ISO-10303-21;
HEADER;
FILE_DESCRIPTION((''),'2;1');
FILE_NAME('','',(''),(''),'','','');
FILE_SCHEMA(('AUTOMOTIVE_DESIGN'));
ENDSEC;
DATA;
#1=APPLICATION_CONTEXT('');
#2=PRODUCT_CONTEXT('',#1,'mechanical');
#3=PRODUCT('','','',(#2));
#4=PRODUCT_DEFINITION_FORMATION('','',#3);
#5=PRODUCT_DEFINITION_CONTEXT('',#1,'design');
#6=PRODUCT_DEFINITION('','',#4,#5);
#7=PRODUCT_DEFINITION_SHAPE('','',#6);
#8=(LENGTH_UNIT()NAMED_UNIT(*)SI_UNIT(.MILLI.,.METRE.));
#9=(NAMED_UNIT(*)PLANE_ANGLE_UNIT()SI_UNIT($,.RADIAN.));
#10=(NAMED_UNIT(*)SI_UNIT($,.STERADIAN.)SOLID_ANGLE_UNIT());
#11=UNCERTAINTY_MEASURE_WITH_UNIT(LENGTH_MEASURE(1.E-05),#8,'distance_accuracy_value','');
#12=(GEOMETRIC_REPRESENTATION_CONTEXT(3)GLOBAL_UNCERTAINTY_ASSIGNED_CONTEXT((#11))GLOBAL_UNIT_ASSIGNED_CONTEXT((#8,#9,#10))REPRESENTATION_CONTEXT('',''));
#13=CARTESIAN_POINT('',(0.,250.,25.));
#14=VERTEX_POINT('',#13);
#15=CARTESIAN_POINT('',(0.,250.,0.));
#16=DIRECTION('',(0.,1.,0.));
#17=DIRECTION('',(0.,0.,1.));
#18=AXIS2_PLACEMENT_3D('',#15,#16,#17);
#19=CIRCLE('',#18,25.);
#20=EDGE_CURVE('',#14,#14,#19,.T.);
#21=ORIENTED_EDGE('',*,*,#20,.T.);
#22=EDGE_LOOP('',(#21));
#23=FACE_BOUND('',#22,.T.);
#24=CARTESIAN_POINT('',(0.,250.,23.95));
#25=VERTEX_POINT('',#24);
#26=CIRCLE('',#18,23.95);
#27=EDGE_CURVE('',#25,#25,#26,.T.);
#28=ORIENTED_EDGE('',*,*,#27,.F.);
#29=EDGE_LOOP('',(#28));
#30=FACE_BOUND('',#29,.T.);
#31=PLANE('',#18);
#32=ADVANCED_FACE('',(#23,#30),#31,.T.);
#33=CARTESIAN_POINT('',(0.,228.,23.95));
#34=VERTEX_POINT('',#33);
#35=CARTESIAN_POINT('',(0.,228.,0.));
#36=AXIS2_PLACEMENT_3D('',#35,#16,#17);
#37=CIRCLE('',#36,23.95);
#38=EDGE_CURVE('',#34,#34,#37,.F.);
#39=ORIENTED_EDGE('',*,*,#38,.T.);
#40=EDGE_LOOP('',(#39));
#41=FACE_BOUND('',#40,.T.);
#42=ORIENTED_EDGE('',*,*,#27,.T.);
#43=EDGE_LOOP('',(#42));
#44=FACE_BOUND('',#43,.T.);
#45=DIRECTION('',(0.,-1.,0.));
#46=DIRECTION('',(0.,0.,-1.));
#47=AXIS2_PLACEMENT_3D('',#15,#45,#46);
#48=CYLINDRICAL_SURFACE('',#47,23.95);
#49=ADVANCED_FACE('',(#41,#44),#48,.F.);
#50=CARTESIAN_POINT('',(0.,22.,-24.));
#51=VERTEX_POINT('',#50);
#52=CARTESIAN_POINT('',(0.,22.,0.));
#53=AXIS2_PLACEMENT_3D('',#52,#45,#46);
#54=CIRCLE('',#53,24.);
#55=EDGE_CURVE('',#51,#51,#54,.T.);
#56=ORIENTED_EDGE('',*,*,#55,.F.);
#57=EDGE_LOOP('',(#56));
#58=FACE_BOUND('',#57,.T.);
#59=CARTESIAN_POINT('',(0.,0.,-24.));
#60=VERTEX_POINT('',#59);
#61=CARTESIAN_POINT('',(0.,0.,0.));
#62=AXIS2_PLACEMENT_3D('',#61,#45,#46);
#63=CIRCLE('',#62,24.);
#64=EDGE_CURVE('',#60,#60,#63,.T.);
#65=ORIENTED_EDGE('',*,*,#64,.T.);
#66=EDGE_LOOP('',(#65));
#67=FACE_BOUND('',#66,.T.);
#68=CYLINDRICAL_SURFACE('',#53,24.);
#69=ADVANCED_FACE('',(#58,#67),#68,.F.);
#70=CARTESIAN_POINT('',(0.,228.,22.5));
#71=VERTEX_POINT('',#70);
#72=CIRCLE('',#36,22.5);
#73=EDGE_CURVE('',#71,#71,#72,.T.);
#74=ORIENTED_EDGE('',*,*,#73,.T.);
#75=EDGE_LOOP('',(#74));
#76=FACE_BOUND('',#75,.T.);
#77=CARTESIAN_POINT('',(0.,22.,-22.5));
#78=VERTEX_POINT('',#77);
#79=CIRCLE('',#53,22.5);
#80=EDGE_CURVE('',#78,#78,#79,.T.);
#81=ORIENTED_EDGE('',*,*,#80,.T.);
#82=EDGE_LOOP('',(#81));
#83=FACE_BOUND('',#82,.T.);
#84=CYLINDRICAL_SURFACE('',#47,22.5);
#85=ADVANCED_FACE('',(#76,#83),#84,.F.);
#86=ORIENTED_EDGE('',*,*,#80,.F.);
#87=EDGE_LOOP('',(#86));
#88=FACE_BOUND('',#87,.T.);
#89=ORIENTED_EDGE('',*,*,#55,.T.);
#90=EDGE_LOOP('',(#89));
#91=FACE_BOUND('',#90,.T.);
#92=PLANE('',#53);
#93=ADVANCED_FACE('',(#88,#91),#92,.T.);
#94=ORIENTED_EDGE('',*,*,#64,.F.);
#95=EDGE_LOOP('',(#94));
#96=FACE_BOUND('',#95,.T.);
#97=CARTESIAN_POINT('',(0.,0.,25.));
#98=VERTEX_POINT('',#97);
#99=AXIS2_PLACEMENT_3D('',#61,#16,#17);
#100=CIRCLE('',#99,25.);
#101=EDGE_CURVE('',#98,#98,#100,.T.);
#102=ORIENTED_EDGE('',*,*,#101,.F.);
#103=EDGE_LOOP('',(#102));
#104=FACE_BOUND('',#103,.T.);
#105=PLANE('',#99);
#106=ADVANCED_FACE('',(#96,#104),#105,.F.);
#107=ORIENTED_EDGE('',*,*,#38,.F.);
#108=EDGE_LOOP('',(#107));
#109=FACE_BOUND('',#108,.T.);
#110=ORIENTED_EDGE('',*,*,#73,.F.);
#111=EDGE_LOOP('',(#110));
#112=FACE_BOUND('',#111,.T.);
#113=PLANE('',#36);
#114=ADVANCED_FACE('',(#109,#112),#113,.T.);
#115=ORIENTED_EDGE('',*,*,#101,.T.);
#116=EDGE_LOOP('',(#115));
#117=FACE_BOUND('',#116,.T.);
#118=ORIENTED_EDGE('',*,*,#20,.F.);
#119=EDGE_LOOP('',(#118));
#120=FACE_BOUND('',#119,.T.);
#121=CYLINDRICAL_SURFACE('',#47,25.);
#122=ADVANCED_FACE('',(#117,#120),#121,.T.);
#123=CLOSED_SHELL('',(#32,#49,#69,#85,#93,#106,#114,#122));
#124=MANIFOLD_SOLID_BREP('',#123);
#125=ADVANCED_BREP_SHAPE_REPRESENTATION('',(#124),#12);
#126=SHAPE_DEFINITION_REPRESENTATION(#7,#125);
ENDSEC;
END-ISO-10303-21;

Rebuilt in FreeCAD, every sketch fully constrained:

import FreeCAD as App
import Part
import Sketcher
from FreeCAD import Vector

doc = App.newDocument("Part")
body = doc.addObject("PartDesign::Body", "Body")

sketch1 = body.newObject("Sketcher::SketchObject", "Sketch")
sketch1.AttachmentSupport = (doc.getObject("XZ_Plane"), [""])
sketch1.MapMode = "FlatFace"
sketch1.addGeometry([
    Part.Circle(Vector(0, 0, 0), Vector(0, 0, 1), 25),
    Part.Circle(Vector(0, 0, 0), Vector(0, 0, 1), 22),
], False)
sketch1.addConstraint([
    Sketcher.Constraint("Coincident", 0, 3, -1, 1),
    Sketcher.Constraint("Coincident", 1, 3, -1, 1),
    Sketcher.Constraint("Diameter", 0, 50.0),
    Sketcher.Constraint("Diameter", 1, 45.0),
])
pad1 = body.newObject("PartDesign::Pad", "Pad")
pad1.Profile = sketch1
pad1.Length = 250
pad1.Reversed = True

sketch2 = body.newObject("Sketcher::SketchObject", "Sketch001")
sketch2.AttachmentSupport = (doc.getObject("XZ_Plane"), [""])
sketch2.MapMode = "FlatFace"
sketch2.addGeometry(Part.Circle(Vector(0, 0, 0), Vector(0, 0, 1), 24), False)
sketch2.addConstraint([
    Sketcher.Constraint("Coincident", 0, 3, -1, 1),
    Sketcher.Constraint("Diameter", 0, 48.0),
])
pocket1 = body.newObject("PartDesign::Pocket", "Pocket")
pocket1.Profile = sketch2
pocket1.Length = 22

sketch3 = body.newObject("Sketcher::SketchObject", "Sketch002")
sketch3.AttachmentSupport = (doc.getObject("XZ_Plane"), [""])
sketch3.MapMode = "FlatFace"
sketch3.AttachmentOffset = App.Placement(Vector(0, 0, -228), App.Rotation())
sketch3.addGeometry(Part.Circle(Vector(0, 0, 0), Vector(0, 0, 1), 24), False)
sketch3.addConstraint([
    Sketcher.Constraint("Coincident", 0, 3, -1, 1),
    Sketcher.Constraint("Diameter", 0, 48.0),
])
pocket2 = body.newObject("PartDesign::Pocket", "Pocket001")
pocket2.Profile = sketch3
pocket2.Length = 22

sketch4 = body.newObject("Sketcher::SketchObject", "Sketch003")
sketch4.AttachmentSupport = (doc.getObject("XZ_Plane"), [""])
sketch4.MapMode = "FlatFace"
sketch4.AttachmentOffset = App.Placement(Vector(0, 0, -228), App.Rotation())
sketch4.addGeometry([
    Part.Circle(Vector(0, 0, 0), Vector(0, 0, 1), 24),
    Part.Circle(Vector(0, 0, 0), Vector(0, 0, 1), 24),
], False)
sketch4.addConstraint([
    Sketcher.Constraint("Coincident", 0, 3, -1, 1),
    Sketcher.Constraint("Coincident", 1, 3, -1, 1),
    Sketcher.Constraint("Diameter", 0, 48.0),
    Sketcher.Constraint("Diameter", 1, 47.9),
])
pad2 = body.newObject("PartDesign::Pad", "Pad001")
pad2.Profile = sketch4
pad2.Length = 22
pad2.Reversed = True

doc.recompute()
